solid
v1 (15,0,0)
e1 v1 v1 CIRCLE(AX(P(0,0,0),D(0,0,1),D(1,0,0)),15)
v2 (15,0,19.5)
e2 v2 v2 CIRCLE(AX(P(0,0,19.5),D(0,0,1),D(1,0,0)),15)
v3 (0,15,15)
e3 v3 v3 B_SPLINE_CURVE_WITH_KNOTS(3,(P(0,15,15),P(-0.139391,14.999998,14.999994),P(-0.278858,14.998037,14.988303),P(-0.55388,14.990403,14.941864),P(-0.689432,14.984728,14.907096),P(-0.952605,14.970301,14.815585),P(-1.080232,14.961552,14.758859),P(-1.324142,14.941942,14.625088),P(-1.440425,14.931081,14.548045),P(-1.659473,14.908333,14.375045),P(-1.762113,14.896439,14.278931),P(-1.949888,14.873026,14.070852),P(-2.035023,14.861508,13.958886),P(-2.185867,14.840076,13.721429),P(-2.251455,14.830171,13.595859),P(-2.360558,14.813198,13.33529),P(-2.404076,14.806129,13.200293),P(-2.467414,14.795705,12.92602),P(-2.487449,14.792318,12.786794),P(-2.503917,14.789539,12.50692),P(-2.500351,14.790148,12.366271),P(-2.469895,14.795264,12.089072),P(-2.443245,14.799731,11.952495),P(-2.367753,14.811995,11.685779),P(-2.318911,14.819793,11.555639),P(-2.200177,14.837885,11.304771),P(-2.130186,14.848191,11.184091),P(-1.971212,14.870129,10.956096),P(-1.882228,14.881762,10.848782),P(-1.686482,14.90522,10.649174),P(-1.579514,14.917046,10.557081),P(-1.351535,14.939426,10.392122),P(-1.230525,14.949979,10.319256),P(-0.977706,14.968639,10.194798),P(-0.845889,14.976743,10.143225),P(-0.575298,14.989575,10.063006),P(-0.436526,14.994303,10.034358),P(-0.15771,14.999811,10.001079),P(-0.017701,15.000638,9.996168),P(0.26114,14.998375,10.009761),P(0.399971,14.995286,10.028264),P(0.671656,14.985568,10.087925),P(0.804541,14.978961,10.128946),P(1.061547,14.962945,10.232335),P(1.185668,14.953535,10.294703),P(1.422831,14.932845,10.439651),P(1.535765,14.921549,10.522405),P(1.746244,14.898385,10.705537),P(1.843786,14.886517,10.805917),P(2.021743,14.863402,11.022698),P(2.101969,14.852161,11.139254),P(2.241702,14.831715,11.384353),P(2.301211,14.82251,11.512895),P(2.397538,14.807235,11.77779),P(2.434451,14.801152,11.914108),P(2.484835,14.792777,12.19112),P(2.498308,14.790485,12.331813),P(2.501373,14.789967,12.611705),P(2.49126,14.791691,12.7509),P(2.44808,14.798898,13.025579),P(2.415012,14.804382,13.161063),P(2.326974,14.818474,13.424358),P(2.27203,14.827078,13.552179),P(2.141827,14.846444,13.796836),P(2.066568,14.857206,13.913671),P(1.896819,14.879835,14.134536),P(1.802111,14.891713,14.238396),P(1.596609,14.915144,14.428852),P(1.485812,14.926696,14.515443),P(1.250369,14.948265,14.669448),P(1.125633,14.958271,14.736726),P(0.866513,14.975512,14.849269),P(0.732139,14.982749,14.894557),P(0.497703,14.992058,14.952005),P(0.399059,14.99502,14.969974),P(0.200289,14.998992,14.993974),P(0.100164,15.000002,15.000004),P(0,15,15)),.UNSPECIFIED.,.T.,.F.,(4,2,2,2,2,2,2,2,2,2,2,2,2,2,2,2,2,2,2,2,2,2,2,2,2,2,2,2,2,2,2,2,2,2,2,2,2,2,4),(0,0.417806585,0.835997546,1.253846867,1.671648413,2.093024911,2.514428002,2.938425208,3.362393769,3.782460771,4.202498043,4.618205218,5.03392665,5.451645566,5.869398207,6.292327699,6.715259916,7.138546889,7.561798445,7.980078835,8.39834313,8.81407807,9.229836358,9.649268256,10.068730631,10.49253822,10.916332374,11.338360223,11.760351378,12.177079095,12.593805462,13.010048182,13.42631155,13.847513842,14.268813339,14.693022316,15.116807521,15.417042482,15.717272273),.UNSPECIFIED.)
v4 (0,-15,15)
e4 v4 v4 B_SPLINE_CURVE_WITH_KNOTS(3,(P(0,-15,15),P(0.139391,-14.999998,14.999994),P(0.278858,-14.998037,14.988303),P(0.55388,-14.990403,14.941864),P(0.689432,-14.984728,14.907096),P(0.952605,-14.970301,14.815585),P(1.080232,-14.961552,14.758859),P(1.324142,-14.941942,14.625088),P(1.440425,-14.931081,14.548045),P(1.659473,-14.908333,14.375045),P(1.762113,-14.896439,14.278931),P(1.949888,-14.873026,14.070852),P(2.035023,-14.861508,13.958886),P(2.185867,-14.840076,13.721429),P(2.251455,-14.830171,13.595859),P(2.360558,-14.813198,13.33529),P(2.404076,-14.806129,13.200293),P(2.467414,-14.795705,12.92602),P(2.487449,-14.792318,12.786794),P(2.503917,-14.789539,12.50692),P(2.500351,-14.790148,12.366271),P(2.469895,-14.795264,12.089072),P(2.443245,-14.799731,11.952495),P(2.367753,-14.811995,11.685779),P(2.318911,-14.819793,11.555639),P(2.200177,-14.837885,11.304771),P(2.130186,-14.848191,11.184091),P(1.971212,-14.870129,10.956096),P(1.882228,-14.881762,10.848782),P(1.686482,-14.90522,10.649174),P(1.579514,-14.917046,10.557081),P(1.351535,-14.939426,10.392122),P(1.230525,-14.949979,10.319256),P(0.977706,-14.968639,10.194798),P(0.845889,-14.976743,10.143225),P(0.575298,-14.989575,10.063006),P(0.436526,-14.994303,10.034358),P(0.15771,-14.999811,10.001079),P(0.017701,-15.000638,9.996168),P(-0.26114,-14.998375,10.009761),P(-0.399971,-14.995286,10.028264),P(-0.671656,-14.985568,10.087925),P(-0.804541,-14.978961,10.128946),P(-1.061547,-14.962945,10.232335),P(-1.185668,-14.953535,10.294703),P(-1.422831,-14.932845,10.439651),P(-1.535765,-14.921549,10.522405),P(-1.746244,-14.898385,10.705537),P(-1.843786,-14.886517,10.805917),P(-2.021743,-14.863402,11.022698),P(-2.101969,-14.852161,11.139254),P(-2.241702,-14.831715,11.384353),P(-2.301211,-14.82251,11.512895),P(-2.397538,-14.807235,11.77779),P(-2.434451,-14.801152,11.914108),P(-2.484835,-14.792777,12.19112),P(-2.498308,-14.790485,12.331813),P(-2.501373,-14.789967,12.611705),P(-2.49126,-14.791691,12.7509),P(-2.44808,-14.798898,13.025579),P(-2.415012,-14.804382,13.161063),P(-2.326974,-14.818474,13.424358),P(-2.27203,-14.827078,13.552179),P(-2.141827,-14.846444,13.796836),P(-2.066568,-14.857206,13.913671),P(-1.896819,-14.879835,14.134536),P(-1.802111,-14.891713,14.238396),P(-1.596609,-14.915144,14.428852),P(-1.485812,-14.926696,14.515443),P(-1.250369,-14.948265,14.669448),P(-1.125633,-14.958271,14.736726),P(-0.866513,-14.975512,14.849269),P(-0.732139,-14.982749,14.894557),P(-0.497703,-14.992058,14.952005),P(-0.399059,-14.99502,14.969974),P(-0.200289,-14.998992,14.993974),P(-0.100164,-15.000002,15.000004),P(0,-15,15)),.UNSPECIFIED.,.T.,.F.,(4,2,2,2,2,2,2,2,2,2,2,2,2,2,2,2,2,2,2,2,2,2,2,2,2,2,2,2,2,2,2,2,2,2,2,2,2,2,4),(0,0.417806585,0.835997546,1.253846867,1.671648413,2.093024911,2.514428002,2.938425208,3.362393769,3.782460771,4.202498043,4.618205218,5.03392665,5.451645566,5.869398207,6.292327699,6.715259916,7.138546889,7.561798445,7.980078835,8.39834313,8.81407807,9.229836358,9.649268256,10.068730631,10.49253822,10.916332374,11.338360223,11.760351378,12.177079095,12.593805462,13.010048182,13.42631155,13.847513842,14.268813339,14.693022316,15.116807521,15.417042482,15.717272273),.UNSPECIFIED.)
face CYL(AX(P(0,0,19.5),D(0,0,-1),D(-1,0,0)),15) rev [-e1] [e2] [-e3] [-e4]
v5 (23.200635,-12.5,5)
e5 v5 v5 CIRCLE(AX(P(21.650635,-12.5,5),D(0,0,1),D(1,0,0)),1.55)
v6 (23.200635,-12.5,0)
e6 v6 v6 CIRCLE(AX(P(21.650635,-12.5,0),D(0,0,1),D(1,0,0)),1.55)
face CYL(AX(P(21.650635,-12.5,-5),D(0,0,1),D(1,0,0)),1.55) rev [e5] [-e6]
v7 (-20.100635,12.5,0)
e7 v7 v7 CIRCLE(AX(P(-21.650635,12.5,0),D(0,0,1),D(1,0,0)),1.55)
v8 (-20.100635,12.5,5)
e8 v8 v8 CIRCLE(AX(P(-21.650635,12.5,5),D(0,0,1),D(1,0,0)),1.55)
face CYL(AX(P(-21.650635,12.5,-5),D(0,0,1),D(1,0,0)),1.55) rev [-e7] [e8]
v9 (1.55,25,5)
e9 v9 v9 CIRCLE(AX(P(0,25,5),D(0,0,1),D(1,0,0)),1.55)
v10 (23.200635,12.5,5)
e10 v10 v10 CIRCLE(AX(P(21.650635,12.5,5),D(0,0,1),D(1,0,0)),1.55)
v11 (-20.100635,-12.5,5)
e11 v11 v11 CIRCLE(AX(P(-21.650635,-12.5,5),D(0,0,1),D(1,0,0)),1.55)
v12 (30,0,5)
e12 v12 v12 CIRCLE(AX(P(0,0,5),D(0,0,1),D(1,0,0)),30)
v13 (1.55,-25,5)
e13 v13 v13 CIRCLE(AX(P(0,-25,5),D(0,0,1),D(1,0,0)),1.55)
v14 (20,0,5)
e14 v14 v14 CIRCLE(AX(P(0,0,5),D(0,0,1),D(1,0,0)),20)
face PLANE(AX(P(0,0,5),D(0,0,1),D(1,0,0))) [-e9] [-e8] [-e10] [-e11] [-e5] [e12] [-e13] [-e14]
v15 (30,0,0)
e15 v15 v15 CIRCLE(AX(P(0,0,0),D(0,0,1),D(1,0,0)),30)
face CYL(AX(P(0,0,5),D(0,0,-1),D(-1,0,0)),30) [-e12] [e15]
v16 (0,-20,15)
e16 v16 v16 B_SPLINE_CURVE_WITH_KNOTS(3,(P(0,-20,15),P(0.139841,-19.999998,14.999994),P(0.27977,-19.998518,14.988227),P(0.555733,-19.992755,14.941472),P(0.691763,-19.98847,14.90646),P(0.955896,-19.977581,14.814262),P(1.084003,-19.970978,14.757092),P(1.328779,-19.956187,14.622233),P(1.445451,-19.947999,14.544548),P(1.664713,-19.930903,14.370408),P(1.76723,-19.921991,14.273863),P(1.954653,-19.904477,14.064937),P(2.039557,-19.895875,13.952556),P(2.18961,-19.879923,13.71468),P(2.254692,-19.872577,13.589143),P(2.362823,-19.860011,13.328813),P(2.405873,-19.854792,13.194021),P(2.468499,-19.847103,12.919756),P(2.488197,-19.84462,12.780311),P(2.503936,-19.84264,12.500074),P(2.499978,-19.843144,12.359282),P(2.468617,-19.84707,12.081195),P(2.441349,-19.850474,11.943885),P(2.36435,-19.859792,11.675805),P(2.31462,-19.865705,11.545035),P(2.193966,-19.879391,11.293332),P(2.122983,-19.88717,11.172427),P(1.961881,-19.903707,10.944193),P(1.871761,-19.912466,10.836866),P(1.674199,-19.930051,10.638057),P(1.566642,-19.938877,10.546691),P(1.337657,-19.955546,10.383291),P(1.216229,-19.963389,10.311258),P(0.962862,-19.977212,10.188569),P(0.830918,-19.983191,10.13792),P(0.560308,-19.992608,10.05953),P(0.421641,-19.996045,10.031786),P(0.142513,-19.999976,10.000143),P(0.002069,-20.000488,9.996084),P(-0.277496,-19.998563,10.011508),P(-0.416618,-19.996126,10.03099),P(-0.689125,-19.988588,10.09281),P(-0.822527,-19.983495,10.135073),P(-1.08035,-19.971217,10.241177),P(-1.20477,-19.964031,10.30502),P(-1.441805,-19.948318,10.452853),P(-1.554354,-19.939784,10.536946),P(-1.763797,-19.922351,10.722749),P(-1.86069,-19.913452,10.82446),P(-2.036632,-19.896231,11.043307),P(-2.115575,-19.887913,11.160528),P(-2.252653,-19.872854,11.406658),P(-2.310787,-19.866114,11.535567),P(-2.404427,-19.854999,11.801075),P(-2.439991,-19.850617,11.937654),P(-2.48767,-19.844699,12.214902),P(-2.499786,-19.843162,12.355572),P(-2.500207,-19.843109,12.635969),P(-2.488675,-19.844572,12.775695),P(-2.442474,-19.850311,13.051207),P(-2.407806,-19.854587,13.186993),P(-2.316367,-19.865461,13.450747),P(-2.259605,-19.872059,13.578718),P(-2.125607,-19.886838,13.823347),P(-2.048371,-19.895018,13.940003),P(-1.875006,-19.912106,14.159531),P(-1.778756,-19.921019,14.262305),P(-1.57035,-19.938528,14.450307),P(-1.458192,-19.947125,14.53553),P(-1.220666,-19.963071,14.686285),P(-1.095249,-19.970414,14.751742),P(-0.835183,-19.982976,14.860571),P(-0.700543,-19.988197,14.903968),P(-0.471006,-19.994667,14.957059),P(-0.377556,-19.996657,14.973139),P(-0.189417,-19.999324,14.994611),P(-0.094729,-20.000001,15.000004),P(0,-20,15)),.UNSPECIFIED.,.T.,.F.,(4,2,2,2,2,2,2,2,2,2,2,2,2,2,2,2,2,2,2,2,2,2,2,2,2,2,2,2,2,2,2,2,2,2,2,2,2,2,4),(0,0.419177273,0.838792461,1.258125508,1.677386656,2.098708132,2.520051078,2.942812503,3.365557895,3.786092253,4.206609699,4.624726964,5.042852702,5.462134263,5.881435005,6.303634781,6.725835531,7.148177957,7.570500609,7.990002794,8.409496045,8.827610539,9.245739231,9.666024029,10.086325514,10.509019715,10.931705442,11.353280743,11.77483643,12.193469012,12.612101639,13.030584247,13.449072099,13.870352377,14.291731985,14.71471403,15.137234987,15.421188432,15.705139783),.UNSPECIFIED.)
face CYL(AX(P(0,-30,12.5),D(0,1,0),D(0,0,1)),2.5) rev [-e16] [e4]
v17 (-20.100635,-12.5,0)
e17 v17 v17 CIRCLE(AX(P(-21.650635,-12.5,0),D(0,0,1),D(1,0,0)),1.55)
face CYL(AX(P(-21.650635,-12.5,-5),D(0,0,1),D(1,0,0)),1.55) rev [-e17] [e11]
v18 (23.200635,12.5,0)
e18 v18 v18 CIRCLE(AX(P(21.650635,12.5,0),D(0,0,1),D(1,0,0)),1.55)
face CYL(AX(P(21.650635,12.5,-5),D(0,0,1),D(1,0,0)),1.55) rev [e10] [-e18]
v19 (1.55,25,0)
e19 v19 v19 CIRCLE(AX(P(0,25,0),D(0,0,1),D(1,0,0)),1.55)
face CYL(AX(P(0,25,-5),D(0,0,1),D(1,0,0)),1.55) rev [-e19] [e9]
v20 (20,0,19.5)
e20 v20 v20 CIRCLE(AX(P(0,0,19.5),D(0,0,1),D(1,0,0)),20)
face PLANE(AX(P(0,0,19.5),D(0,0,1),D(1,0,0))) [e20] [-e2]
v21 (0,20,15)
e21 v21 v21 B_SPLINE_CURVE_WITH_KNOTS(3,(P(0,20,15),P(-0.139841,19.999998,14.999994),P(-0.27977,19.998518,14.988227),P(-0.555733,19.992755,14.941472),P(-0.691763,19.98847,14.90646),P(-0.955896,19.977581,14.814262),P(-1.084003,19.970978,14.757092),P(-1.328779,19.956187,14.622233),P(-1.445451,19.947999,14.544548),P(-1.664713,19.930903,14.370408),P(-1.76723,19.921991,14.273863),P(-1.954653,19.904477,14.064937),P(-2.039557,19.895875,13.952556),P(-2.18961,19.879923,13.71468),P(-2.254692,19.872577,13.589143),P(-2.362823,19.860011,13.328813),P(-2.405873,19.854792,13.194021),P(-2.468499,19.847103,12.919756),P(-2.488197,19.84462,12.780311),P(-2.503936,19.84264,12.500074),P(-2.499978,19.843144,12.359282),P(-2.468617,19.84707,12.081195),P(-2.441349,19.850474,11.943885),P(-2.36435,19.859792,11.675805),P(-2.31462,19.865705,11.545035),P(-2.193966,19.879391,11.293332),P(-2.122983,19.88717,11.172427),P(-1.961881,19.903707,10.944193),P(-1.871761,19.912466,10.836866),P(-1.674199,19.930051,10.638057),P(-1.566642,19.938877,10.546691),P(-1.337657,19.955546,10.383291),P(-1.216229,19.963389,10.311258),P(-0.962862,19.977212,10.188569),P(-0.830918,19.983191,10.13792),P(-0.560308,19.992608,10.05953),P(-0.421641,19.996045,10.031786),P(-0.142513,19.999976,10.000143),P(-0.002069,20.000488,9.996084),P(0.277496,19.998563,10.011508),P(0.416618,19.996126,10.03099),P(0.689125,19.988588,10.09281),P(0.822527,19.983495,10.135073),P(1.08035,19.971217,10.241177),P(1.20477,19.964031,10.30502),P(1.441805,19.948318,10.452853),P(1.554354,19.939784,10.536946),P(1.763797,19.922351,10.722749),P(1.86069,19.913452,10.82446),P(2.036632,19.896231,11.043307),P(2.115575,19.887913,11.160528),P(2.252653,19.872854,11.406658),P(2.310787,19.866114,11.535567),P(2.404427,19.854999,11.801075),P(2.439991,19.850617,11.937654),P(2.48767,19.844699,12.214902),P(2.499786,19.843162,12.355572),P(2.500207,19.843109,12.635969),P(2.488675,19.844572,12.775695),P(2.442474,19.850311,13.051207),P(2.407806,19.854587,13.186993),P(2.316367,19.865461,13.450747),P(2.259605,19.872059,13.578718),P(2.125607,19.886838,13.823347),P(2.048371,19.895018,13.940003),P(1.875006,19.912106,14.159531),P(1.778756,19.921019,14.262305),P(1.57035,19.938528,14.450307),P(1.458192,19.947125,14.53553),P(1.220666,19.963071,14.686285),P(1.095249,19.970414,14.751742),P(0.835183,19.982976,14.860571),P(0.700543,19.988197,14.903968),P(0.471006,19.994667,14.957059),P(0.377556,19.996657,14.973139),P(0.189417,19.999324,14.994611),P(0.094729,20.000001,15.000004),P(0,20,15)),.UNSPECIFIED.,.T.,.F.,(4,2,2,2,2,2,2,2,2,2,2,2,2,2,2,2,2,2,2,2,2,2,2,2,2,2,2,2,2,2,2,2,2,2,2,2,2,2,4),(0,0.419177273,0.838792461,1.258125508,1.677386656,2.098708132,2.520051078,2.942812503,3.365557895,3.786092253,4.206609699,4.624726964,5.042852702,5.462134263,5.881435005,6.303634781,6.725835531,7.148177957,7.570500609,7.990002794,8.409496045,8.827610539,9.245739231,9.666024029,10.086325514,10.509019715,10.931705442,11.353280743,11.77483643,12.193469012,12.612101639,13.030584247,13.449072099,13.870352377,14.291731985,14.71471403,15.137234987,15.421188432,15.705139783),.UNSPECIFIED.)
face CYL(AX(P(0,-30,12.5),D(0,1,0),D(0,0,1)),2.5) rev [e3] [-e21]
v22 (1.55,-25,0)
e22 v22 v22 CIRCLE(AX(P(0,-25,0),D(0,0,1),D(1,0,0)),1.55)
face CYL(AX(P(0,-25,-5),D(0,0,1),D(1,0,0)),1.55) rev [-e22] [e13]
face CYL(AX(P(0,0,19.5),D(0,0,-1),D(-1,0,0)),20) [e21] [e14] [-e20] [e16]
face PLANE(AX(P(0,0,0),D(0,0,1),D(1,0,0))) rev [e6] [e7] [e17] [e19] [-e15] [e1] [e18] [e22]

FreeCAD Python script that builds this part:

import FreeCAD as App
import Part
import Sketcher
from FreeCAD import Vector
Q = App.Units.Quantity

doc = App.newDocument("Part")
params = doc.addObject("Spreadsheet::Sheet", "Params")
for row, (alias, value) in enumerate([
    ("sketch1_diameter", "60 mm"),
    ("pad1_length", "5 mm"),
    ("sketch2_diameter", "40 mm"),
    ("sketch2_diameter2", "30 mm"),
    ("pad2_length", "14.5 mm"),
    ("sketch3_diameter", "30 mm"),
    ("pocket1_length", "20 mm"),
    ("sketch4_diameter", "5 mm"),
    ("sketch5_diameter", "3.1 mm"),
    ("pocket3_length", "10 mm"),
], start=1):
    params.set(f"A{row}", alias)
    params.set(f"B{row}", "=" + value)
    params.setAlias(f"B{row}", alias)

body = doc.addObject("PartDesign::Body", "Body")

# Sketch on XY plane
sketch1 = body.newObject("Sketcher::SketchObject", "Sketch")
sketch1.AttachmentSupport = (doc.getObject("XY_Plane"), [""])
sketch1.MapMode = "FlatFace"
sketch1.addGeometry(Part.Circle(Vector(0, 0, 0), Vector(0, 0, 1), 30), False)
sketch1.addConstraint([
    Sketcher.Constraint("Coincident", 0, 3, -1, 1),
    Sketcher.Constraint("Diameter", 0, Q("60 mm")),
])
sketch1.setExpression("Constraints[1]", "Params.sketch1_diameter")
pad1 = body.newObject("PartDesign::Pad", "Pad")
pad1.Profile = sketch1
pad1.setExpression("Length", "Params.pad1_length")

# Sketch on XY plane
sketch2 = body.newObject("Sketcher::SketchObject", "Sketch001")
sketch2.AttachmentSupport = (doc.getObject("XY_Plane"), [""])
sketch2.MapMode = "FlatFace"
sketch2.AttachmentOffset = App.Placement(Vector(0, 0, 5), App.Rotation())
sketch2.addGeometry([
    Part.Circle(Vector(0, 0, 0), Vector(0, 0, 1), 20),
    Part.Circle(Vector(0, 0, 0), Vector(0, 0, 1), 15),
], False)
sketch2.addConstraint([
    Sketcher.Constraint("Coincident", 0, 3, -1, 1),
    Sketcher.Constraint("Coincident", 1, 3, -1, 1),
    Sketcher.Constraint("Diameter", 0, Q("40 mm")),
    Sketcher.Constraint("Diameter", 1, Q("30 mm")),
])
sketch2.setExpression("Constraints[2]", "Params.sketch2_diameter")
sketch2.setExpression("Constraints[3]", "Params.sketch2_diameter2")
pad2 = body.newObject("PartDesign::Pad", "Pad001")
pad2.Profile = sketch2
pad2.setExpression("Length", "Params.pad2_length")

# Sketch on XY plane
sketch3 = body.newObject("Sketcher::SketchObject", "Sketch002")
sketch3.AttachmentSupport = (doc.getObject("XY_Plane"), [""])
sketch3.MapMode = "FlatFace"
sketch3.AttachmentOffset = App.Placement(Vector(0, 0, -15), App.Rotation())
sketch3.addGeometry(Part.Circle(Vector(0, 0, 0), Vector(0, 0, 1), 15), False)
sketch3.addConstraint([
    Sketcher.Constraint("Coincident", 0, 3, -1, 1),
    Sketcher.Constraint("Diameter", 0, Q("30 mm")),
])
sketch3.setExpression("Constraints[1]", "Params.sketch3_diameter")
pocket1 = body.newObject("PartDesign::Pocket", "Pocket")
pocket1.Profile = sketch3
pocket1.setExpression("Length", "Params.pocket1_length")
pocket1.Reversed = True

# Sketch on XZ plane
sketch4 = body.newObject("Sketcher::SketchObject", "Sketch003")
sketch4.AttachmentSupport = (doc.getObject("XZ_Plane"), [""])
sketch4.MapMode = "FlatFace"
sketch4.addGeometry(Part.Circle(Vector(0, 12.5, 0), Vector(0, 0, 1), 2.5), False)
sketch4.addConstraint([
    Sketcher.Constraint("PointOnObject", 0, 3, -2),
    Sketcher.Constraint("Diameter", 0, Q("5 mm")),
    Sketcher.Constraint("DistanceY", -1, 1, 0, 3, Q("12.5 mm")),
])
sketch4.setExpression("Constraints[1]", "Params.sketch4_diameter")
pocket2 = body.newObject("PartDesign::Pocket", "Pocket001")
pocket2.Profile = sketch4
pocket2.Type = "ThroughAll"
pocket2.Midplane = True

# Sketch on XY plane
sketch5 = body.newObject("Sketcher::SketchObject", "Sketch004")
sketch5.AttachmentSupport = (doc.getObject("XY_Plane"), [""])
sketch5.MapMode = "FlatFace"
sketch5.AttachmentOffset = App.Placement(Vector(0, 0, 5), App.Rotation())
sketch5.addGeometry([
    Part.Circle(Vector(0, 25, 0), Vector(0, 0, 1), 1.55),  # 0
    Part.Circle(Vector(21.650635, 12.5, 0), Vector(0, 0, 1), 1.55),  # 1
    Part.Circle(Vector(21.650635, -12.5, 0), Vector(0, 0, 1), 1.55),  # 2
    Part.Circle(Vector(0, -25, 0), Vector(0, 0, 1), 1.55),  # 3
    Part.Circle(Vector(-21.650635, -12.5, 0), Vector(0, 0, 1), 1.55),  # 4
    Part.Circle(Vector(-21.650635, 12.5, 0), Vector(0, 0, 1), 1.55),  # 5
], False)
sketch5.addConstraint([
    Sketcher.Constraint("Equal", 0, 1),
    Sketcher.Constraint("Equal", 1, 2),
    Sketcher.Constraint("Equal", 2, 3),
    Sketcher.Constraint("Equal", 3, 4),
    Sketcher.Constraint("Equal", 4, 5),
    Sketcher.Constraint("Symmetric", 0, 3, 3, 3, -1, 1),
    Sketcher.Constraint("Symmetric", 1, 3, 4, 3, -1, 1),
    Sketcher.Constraint("Symmetric", 2, 3, 5, 3, -1, 1),
    Sketcher.Constraint("Symmetric", 2, 3, 4, 3, -2),
    Sketcher.Constraint("PointOnObject", 0, 3, -2),
    Sketcher.Constraint("Diameter", 0, Q("3.1 mm")),
    Sketcher.Constraint("DistanceY", -1, 1, 0, 3, Q("25 mm")),
    Sketcher.Constraint("DistanceY", 2, 3, 1, 3, Q("25 mm")),
    Sketcher.Constraint("DistanceX", 4, 3, 2, 3, Q("43.30127 mm")),
])
sketch5.setExpression("Constraints[10]", "Params.sketch5_diameter")
pocket3 = body.newObject("PartDesign::Pocket", "Pocket002")
pocket3.Profile = sketch5
pocket3.setExpression("Length", "Params.pocket3_length")

doc.recompute()
